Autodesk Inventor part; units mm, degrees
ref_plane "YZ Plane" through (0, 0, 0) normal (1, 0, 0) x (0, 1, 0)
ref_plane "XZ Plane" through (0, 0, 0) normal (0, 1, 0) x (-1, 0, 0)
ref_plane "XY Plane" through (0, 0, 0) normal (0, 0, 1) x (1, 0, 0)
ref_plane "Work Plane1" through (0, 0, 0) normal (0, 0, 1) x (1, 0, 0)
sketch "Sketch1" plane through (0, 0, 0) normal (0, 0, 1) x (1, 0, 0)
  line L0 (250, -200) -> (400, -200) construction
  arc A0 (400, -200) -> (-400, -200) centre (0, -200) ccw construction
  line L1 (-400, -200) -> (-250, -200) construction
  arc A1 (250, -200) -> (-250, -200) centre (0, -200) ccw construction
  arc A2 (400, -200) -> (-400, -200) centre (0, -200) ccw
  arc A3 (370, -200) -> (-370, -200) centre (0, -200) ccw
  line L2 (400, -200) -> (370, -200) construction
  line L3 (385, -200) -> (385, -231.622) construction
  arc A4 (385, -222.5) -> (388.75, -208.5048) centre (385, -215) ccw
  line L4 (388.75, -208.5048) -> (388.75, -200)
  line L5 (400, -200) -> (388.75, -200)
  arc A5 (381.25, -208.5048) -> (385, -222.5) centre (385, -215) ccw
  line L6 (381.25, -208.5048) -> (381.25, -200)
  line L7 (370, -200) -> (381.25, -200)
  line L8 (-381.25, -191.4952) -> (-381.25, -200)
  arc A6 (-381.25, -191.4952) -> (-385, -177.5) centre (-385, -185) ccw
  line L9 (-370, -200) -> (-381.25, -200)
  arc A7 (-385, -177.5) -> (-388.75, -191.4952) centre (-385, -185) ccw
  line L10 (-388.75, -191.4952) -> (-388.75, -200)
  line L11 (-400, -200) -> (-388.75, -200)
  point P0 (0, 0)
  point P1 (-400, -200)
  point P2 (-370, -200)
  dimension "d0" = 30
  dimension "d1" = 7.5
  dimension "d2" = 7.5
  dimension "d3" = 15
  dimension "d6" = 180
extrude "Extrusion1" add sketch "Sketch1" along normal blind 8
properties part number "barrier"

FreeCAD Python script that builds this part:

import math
import FreeCAD as App
import Part
import Sketcher

V = App.Vector
Q = App.Units.Quantity

doc = App.newDocument("Part")
body = doc.addObject("PartDesign::Body", "Body")

# Sketch on XY plane
sketch1 = doc.addObject("Sketcher::SketchObject", "Sketch")
body.addObject(sketch1)
sketch1.AttachmentSupport = (doc.XY_Plane, [""])
sketch1.MapMode = "FlatFace"
sketch1.addGeometry([
    Part.LineSegment(V(388.75, -200, 0), V(400, -200, 0)),  # 0
    Part.ArcOfCircle(Part.Circle(V(0, -200, 0), V(0, 0, 1), 400), math.radians(0), math.radians(180)),  # 1
    Part.LineSegment(V(-400, -200, 0), V(-388.75, -200, 0)),  # 2
    Part.LineSegment(V(-388.75, -200, 0), V(-388.75, -191.4952, 0)),  # 3
    Part.ArcOfCircle(Part.Circle(V(-385, -185, 0), V(0, 0, 1), 7.500008), math.radians(90), math.radians(240.000036)),  # 4
    Part.ArcOfCircle(Part.Circle(V(-385, -185, 0), V(0, 0, 1), 7.5), math.radians(-60.000036), math.radians(90)),  # 5
    Part.LineSegment(V(-381.25, -191.4952, 0), V(-381.25, -200, 0)),  # 6
    Part.LineSegment(V(-381.25, -200, 0), V(-370, -200, 0)),  # 7
    Part.ArcOfCircle(Part.Circle(V(0, -200, 0), V(0, 0, 1), 370), math.radians(0), math.radians(180)),  # 8
    Part.LineSegment(V(370, -200, 0), V(381.25, -200, 0)),  # 9
    Part.LineSegment(V(381.25, -200, 0), V(381.25, -208.5048, 0)),  # 10
    Part.ArcOfCircle(Part.Circle(V(385, -215, 0), V(0, 0, 1), 7.5), math.radians(119.999964), math.radians(270)),  # 11
    Part.ArcOfCircle(Part.Circle(V(385, -215, 0), V(0, 0, 1), 7.500008), math.radians(-90), math.radians(60.000036)),  # 12
    Part.LineSegment(V(388.75, -208.5048, 0), V(388.75, -200, 0)),  # 13
], False)
sketch1.addConstraint([
    Sketcher.Constraint("Coincident", 0, 2, 1, 1),
    Sketcher.Constraint("Coincident", 1, 2, 2, 1),
    Sketcher.Constraint("Coincident", 2, 2, 3, 1),
    Sketcher.Constraint("Coincident", 3, 2, 4, 2),
    Sketcher.Constraint("Tangent", 4, 1, 5, 2),
    Sketcher.Constraint("Coincident", 5, 1, 6, 1),
    Sketcher.Constraint("Coincident", 6, 2, 7, 1),
    Sketcher.Constraint("Coincident", 7, 2, 8, 2),
    Sketcher.Constraint("Coincident", 8, 1, 9, 1),
    Sketcher.Constraint("Coincident", 9, 2, 10, 1),
    Sketcher.Constraint("Coincident", 10, 2, 11, 1),
    Sketcher.Constraint("Tangent", 11, 2, 12, 1),
    Sketcher.Constraint("Coincident", 12, 2, 13, 1),
    Sketcher.Constraint("Coincident", 13, 2, 0, 1),
    Sketcher.Constraint("Horizontal", 0),
    Sketcher.Constraint("Horizontal", 2),
    Sketcher.Constraint("Vertical", 3),
    Sketcher.Constraint("Vertical", 6),
    Sketcher.Constraint("Horizontal", 7),
    Sketcher.Constraint("Horizontal", 9),
    Sketcher.Constraint("Vertical", 10),
    Sketcher.Constraint("Vertical", 13),
    Sketcher.Constraint("Coincident", 8, 3, 1, 3),
    Sketcher.Constraint("Equal", 4, 5),
    Sketcher.Constraint("Equal", 5, 11),
    Sketcher.Constraint("Equal", 11, 12),
    Sketcher.Constraint("Symmetric", 0, 2, 1, 2, -2),
    Sketcher.Constraint("Symmetric", 6, 2, 9, 2, -2),
    Sketcher.Constraint("Horizontal", 8, 3, 0, 2),
    Sketcher.Constraint("Horizontal", 3, 2, 5, 1),
    Sketcher.Constraint("Horizontal", 2, 2, 6, 2),
    Sketcher.Constraint("Horizontal", 10, 2, 12, 2),
    Sketcher.Constraint("Vertical", 5, 3, 4, 1),
    Sketcher.Constraint("Vertical", 12, 3, 11, 2),
    Sketcher.Constraint("Equal", 0, 2),
    Sketcher.Constraint("Equal", 2, 7),
    Sketcher.Constraint("Equal", 6, 10),
    Sketcher.Constraint("Radius", 4, Q("7.5 mm")),
    Sketcher.Constraint("Radius", 1, Q("400 mm")),
    Sketcher.Constraint("Radius", 8, Q("370 mm")),
    Sketcher.Constraint("DistanceY", 1, 3, 4, 3, Q("15 mm")),
    Sketcher.Constraint("DistanceX", 3, 2, 5, 1, Q("7.5 mm")),
    Sketcher.Constraint("DistanceY", 1, 3, -1, 1, Q("200 mm")),
])
pad1 = doc.addObject("PartDesign::Pad", "Pad")
body.addObject(pad1)
pad1.Profile = sketch1
pad1.Length = 8

doc.recompute()
